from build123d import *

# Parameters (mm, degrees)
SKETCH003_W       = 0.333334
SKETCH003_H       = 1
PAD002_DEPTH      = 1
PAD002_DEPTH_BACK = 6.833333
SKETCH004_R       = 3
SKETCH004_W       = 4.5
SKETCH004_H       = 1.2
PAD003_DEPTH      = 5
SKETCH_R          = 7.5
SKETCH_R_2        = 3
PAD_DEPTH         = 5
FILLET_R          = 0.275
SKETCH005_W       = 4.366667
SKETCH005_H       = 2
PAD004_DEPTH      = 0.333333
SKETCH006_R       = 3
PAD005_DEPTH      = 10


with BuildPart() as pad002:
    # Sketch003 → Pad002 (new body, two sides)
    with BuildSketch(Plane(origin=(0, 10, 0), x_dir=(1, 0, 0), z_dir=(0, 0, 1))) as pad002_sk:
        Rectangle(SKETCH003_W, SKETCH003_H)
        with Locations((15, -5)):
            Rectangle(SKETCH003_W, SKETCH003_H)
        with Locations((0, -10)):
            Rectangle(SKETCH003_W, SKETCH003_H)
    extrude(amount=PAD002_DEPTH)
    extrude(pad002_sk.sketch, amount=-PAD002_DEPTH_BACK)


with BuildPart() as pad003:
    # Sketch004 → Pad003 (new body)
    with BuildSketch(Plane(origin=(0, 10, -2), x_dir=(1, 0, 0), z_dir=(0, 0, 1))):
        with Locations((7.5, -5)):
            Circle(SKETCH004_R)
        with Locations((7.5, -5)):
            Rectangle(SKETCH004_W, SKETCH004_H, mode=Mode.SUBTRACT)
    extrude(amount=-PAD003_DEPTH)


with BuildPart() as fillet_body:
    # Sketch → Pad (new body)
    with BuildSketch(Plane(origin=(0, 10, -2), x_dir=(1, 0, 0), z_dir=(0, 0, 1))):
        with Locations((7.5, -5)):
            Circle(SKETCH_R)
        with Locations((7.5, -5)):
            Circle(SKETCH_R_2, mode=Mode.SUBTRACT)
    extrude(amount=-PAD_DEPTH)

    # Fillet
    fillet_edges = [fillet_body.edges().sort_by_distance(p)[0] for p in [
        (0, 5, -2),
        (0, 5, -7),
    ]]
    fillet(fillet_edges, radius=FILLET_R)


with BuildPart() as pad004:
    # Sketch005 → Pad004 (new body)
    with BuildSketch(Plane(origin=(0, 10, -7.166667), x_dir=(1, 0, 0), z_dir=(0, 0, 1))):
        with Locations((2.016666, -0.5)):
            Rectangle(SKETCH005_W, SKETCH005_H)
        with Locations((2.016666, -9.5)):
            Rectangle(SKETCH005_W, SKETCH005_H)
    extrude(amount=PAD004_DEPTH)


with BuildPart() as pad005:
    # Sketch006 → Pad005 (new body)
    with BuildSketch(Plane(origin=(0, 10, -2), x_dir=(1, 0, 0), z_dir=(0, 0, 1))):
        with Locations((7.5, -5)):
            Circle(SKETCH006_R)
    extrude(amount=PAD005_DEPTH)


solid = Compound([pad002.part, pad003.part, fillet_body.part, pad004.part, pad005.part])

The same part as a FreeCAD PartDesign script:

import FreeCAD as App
import Part
import Sketcher
from FreeCAD import Vector
Q = App.Units.Quantity


def edges_at(feature, points):
    """Names of the edges that pass closest to the given points."""
    edges = feature.Shape.Edges
    near = lambda p: min(range(len(edges)), key=lambda i: edges[i].distToShape(Part.Vertex(*p))[0])
    return sorted({f"Edge{near(p) + 1}" for p in points})


def add_polygon(sketch, points):
    """Adds a closed chain of lines whose ends are joined by coincident constraints."""
    first, n = sketch.GeometryCount, len(points)
    for a, b in zip(points, points[1:] + points[:1]):
        sketch.addGeometry(Part.LineSegment(App.Vector(*a, 0), App.Vector(*b, 0)), False)
    for i in range(n):
        sketch.addConstraint(Sketcher.Constraint("Coincident", first + i, 2, first + (i + 1) % n, 1))

doc = App.newDocument("Part")
body = doc.addObject("PartDesign::Body", "Body")
body.AllowCompound = True

# Sketch on XY plane
sketch1 = body.newObject("Sketcher::SketchObject", "Sketch")
sketch1.AttachmentSupport = (doc.getObject("XY_Plane"), [""])
sketch1.MapMode = "FlatFace"
add_polygon(sketch1, [(-0.17, 10.5), (-0.17, 9.5), (0.17, 9.5), (0.17, 10.5)])  # lines 0-3
add_polygon(sketch1, [(14.83, 5.5), (14.83, 4.5), (15.17, 4.5), (15.17, 5.5)])  # lines 4-7
add_polygon(sketch1, [(-0.17, 0.5), (-0.17, -0.5), (0.17, -0.5), (0.17, 0.5)])  # lines 8-11
sketch1.addConstraint(Sketcher.Constraint("Vertical", 0))
sketch1.addConstraint(Sketcher.Constraint("Horizontal", 1))
sketch1.addConstraint(Sketcher.Constraint("Vertical", 2))
sketch1.addConstraint(Sketcher.Constraint("Horizontal", 3))
sketch1.addConstraint(Sketcher.Constraint("Vertical", 4))
sketch1.addConstraint(Sketcher.Constraint("Horizontal", 5))
sketch1.addConstraint(Sketcher.Constraint("Vertical", 6))
sketch1.addConstraint(Sketcher.Constraint("Horizontal", 7))
sketch1.addConstraint(Sketcher.Constraint("Vertical", 8))
sketch1.addConstraint(Sketcher.Constraint("Horizontal", 9))
sketch1.addConstraint(Sketcher.Constraint("Vertical", 10))
sketch1.addConstraint(Sketcher.Constraint("Horizontal", 11))
sketch1.addConstraint(Sketcher.Constraint("Symmetric", 8, 2, 10, 2, -1, 1))
sketch1.addConstraint(Sketcher.Constraint("Vertical", 3, 2, 8, 2))
sketch1.addConstraint(Sketcher.Constraint("Vertical", 2, 2, 9, 2))
sketch1.addConstraint(Sketcher.Constraint("Equal", 3, 5))
sketch1.addConstraint(Sketcher.Constraint("Equal", 2, 4))
sketch1.addConstraint(Sketcher.Constraint("Equal", 6, 8))
sketch1.addConstraint(Sketcher.Constraint("DistanceY", 0, 2, 0, 1, Q("1 mm")))
sketch1.addConstraint(Sketcher.Constraint("DistanceY", 4, 2, 1, 2, Q("5 mm")))
sketch1.addConstraint(Sketcher.Constraint("DistanceX", 0, 2, 4, 2, Q("15 mm")))
sketch1.addConstraint(Sketcher.Constraint("DistanceY", 8, 2, 0, 2, Q("10 mm")))
sketch1.addConstraint(Sketcher.Constraint("DistanceX", 1, 1, 1, 2, Q("0.333334 mm")))
pad1 = body.newObject("PartDesign::Pad", "Pad")
pad1.Profile = sketch1
pad1.Type = "TwoLengths"
pad1.Length = 1
pad1.Length2 = 6.833333
body2 = doc.addObject("PartDesign::Body", "Body001")

# Sketch on XY plane
sketch2 = body2.newObject("Sketcher::SketchObject", "Sketch001")
sketch2.AttachmentSupport = (doc.getObject("XY_Plane001"), [""])
sketch2.MapMode = "FlatFace"
sketch2.AttachmentOffset = App.Placement(Vector(0, 0, -2), App.Rotation())
sketch2.addGeometry(Part.Circle(Vector(7.5, 5, 0), Vector(0, 0, 1), 3), False)  # 0
add_polygon(sketch2, [(9.8, 4.4), (5.2, 4.4), (5.2, 5.6), (9.8, 5.6)])  # lines 1-4
sketch2.addConstraint(Sketcher.Constraint("Horizontal", 1))
sketch2.addConstraint(Sketcher.Constraint("Vertical", 2))
sketch2.addConstraint(Sketcher.Constraint("Horizontal", 3))
sketch2.addConstraint(Sketcher.Constraint("Vertical", 4))
sketch2.addConstraint(Sketcher.Constraint("Diameter", 0, Q("6 mm")))
sketch2.addConstraint(Sketcher.Constraint("DistanceX", 1, 2, 1, 1, Q("4.5 mm")))
sketch2.addConstraint(Sketcher.Constraint("DistanceY", 2, 1, 2, 2, Q("1.2 mm")))
sketch2.addConstraint(Sketcher.Constraint("DistanceY", -1, 1, 0, 3, Q("5 mm")))
sketch2.addConstraint(Sketcher.Constraint("DistanceX", -1, 1, 0, 3, Q("7.5 mm")))
sketch2.addConstraint(Sketcher.Constraint("DistanceY", -1, 1, 1, 2, Q("4.4 mm")))
sketch2.addConstraint(Sketcher.Constraint("DistanceX", -1, 1, 1, 2, Q("5.25 mm")))
pad2 = body2.newObject("PartDesign::Pad", "Pad001")
pad2.Profile = sketch2
pad2.Length = 5
pad2.Reversed = True
body3 = doc.addObject("PartDesign::Body", "Body002")

# Sketch on XY plane
sketch3 = body3.newObject("Sketcher::SketchObject", "Sketch002")
sketch3.AttachmentSupport = (doc.getObject("XY_Plane002"), [""])
sketch3.MapMode = "FlatFace"
sketch3.AttachmentOffset = App.Placement(Vector(0, 0, -2), App.Rotation())
sketch3.addGeometry(Part.Circle(Vector(7.5, 5, 0), Vector(0, 0, 1), 7.5), False)
sketch3.addGeometry(Part.Circle(Vector(7.5, 5, 0), Vector(0, 0, 1), 3), False)
sketch3.addConstraint(Sketcher.Constraint("Coincident", 1, 3, 0, 3))
sketch3.addConstraint(Sketcher.Constraint("Diameter", 0, Q("15 mm")))
sketch3.addConstraint(Sketcher.Constraint("Diameter", 1, Q("6 mm")))
sketch3.addConstraint(Sketcher.Constraint("DistanceY", -1, 1, 0, 3, Q("5 mm")))
sketch3.addConstraint(Sketcher.Constraint("DistanceX", -1, 1, 0, 3, Q("7.5 mm")))
pad3 = body3.newObject("PartDesign::Pad", "Pad002")
pad3.Profile = sketch3
pad3.Length = 5
pad3.Reversed = True
doc.recompute()

fillet = body3.newObject("PartDesign::Fillet", "Fillet")
fillet.Base = (pad3, edges_at(pad3, [(0, 5, -2), (0, 5, -7)]))
fillet.Radius = 0.275
body4 = doc.addObject("PartDesign::Body", "Body003")
body4.AllowCompound = True

# Sketch on XY plane
sketch4 = body4.newObject("Sketcher::SketchObject", "Sketch003")
sketch4.AttachmentSupport = (doc.getObject("XY_Plane003"), [""])
sketch4.MapMode = "FlatFace"
sketch4.AttachmentOffset = App.Placement(Vector(0, 0, -7.166667), App.Rotation())
add_polygon(sketch4, [(-0.2, 10.5), (-0.2, 8.5), (4.2, 8.5), (4.2, 10.5)])  # lines 0-3
add_polygon(sketch4, [(-0.2, 1.5), (-0.2, -0.5), (4.2, -0.5), (4.2, 1.5)])  # lines 4-7
sketch4.addConstraint(Sketcher.Constraint("Vertical", 0))
sketch4.addConstraint(Sketcher.Constraint("Horizontal", 1))
sketch4.addConstraint(Sketcher.Constraint("Vertical", 2))
sketch4.addConstraint(Sketcher.Constraint("Horizontal", 3))
sketch4.addConstraint(Sketcher.Constraint("Vertical", 4))
sketch4.addConstraint(Sketcher.Constraint("Horizontal", 5))
sketch4.addConstraint(Sketcher.Constraint("Vertical", 6))
sketch4.addConstraint(Sketcher.Constraint("Horizontal", 7))
sketch4.addConstraint(Sketcher.Constraint("Vertical", 3, 2, 4, 2))
sketch4.addConstraint(Sketcher.Constraint("Vertical", 2, 2, 5, 2))
sketch4.addConstraint(Sketcher.Constraint("Equal", 2, 4))
sketch4.addConstraint(Sketcher.Constraint("DistanceY", 0, 2, 0, 1, Q("2 mm")))
sketch4.addConstraint(Sketcher.Constraint("DistanceY", 4, 2, 0, 2, Q("9 mm")))
sketch4.addConstraint(Sketcher.Constraint("DistanceY", -1, 1, 0, 2, Q("8.5 mm")))
sketch4.addConstraint(Sketcher.Constraint("DistanceX", -1, 1, 1, 2, Q("4.199999 mm")))
sketch4.addConstraint(Sketcher.Constraint("DistanceX", 1, 1, 1, 2, Q("4.366667 mm")))
pad4 = body4.newObject("PartDesign::Pad", "Pad003")
pad4.Profile = sketch4
pad4.Length = 0.333333
body5 = doc.addObject("PartDesign::Body", "Body004")

# Sketch on XY plane
sketch5 = body5.newObject("Sketcher::SketchObject", "Sketch004")
sketch5.AttachmentSupport = (doc.getObject("XY_Plane004"), [""])
sketch5.MapMode = "FlatFace"
sketch5.AttachmentOffset = App.Placement(Vector(0, 0, -2), App.Rotation())
sketch5.addGeometry(Part.Circle(Vector(7.5, 5, 0), Vector(0, 0, 1), 3), False)
sketch5.addConstraint(Sketcher.Constraint("Diameter", 0, Q("6 mm")))
sketch5.addConstraint(Sketcher.Constraint("DistanceY", -1, 1, 0, 3, Q("5 mm")))
sketch5.addConstraint(Sketcher.Constraint("DistanceX", -1, 1, 0, 3, Q("7.5 mm")))
pad5 = body5.newObject("PartDesign::Pad", "Pad004")
pad5.Profile = sketch5
pad5.Length = 10

doc.recompute()
